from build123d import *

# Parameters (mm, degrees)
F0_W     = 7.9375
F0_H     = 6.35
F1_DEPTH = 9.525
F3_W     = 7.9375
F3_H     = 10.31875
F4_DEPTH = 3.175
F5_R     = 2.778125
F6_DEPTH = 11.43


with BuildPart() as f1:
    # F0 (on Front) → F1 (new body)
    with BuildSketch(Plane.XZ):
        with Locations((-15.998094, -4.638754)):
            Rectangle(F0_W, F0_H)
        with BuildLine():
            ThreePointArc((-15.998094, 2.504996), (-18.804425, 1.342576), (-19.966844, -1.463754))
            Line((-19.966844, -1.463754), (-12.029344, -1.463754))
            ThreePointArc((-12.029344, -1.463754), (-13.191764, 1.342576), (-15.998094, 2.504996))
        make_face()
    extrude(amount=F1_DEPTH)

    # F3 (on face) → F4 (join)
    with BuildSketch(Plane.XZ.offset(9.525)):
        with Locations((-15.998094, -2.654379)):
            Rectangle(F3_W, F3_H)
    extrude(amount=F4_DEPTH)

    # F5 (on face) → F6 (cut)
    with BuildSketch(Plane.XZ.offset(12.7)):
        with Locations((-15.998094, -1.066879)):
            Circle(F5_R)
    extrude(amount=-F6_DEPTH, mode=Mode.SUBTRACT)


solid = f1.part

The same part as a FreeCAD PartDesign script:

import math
import FreeCAD as App
import Part
import Sketcher

V = App.Vector
Q = App.Units.Quantity


def add_polygon(sketch, points):
    """Adds a closed chain of lines whose ends are joined by coincident constraints."""
    first, n = sketch.GeometryCount, len(points)
    for a, b in zip(points, points[1:] + points[:1]):
        sketch.addGeometry(Part.LineSegment(App.Vector(*a, 0), App.Vector(*b, 0)), False)
    for i in range(n):
        sketch.addConstraint(Sketcher.Constraint("Coincident", first + i, 2, first + (i + 1) % n, 1))

doc = App.newDocument("Part")
body = doc.addObject("PartDesign::Body", "Body")

# Sketch on XZ plane
sketch1 = body.newObject("Sketcher::SketchObject", "Sketch")
sketch1.AttachmentSupport = (doc.getObject("XZ_Plane"), [""])
sketch1.MapMode = "FlatFace"
sketch1.addGeometry([
    Part.LineSegment(V(-19.966844, -1.463754, 0), V(-19.966844, -7.813754, 0)),  # 0
    Part.LineSegment(V(-19.966844, -7.813754, 0), V(-12.029344, -7.813754, 0)),  # 1
    Part.LineSegment(V(-12.029344, -7.813754, 0), V(-12.029344, -1.463754, 0)),  # 2
    Part.ArcOfCircle(Part.Circle(V(-15.998094, -1.463754, 0), V(0, 0, 1), 3.96875), math.radians(0.000002), math.radians(89.999998)),  # 3
    Part.ArcOfCircle(Part.Circle(V(-15.998096, -1.463752, 0), V(0, 0, 1), 3.968748), math.radians(89.999977), math.radians(180.000023)),  # 4
], False)
sketch1.addConstraint([
    Sketcher.Constraint("Coincident", 0, 2, 1, 1),
    Sketcher.Constraint("Coincident", 1, 2, 2, 1),
    Sketcher.Constraint("Tangent", 2, 2, 3, 1),
    Sketcher.Constraint("Tangent", 3, 2, 4, 1),
    Sketcher.Constraint("Tangent", 4, 2, 0, 1),
    Sketcher.Constraint("Vertical", 0),
    Sketcher.Constraint("Horizontal", 1),
    Sketcher.Constraint("Vertical", 2),
    Sketcher.Constraint("Equal", 3, 4),
    Sketcher.Constraint("Vertical", 4, 3, 3, 2),
    Sketcher.Constraint("Radius", 3, Q("0.15625 in")),
    Sketcher.Constraint("DistanceY", 0, 2, 0, 1, Q("0.25 in")),
    Sketcher.Constraint("DistanceX", 3, 3, -1, 1, Q("15.998094 mm")),
    Sketcher.Constraint("DistanceY", 3, 3, -1, 1, Q("1.463754 mm")),
])
pad1 = body.newObject("PartDesign::Pad", "Pad")
pad1.Profile = sketch1
pad1.Length = Q("0.375 in")

# Sketch on XZ plane
sketch2 = body.newObject("Sketcher::SketchObject", "Sketch001")
sketch2.AttachmentSupport = (doc.getObject("XZ_Plane"), [""])
sketch2.MapMode = "FlatFace"
sketch2.AttachmentOffset = App.Placement(V(0, 0, 0.375 * 25.4), App.Rotation())
add_polygon(sketch2, [(-19.966844, 2.504996), (-19.966844, -7.813754), (-12.029344, -7.813754), (-12.029344, 2.504996)])  # lines 0-3
sketch2.addConstraint([
    Sketcher.Constraint("Vertical", 0),
    Sketcher.Constraint("Horizontal", 1),
    Sketcher.Constraint("Vertical", 2),
    Sketcher.Constraint("Horizontal", 3),
    Sketcher.Constraint("DistanceX", 1, 1, 1, 2, Q("0.3125 in")),
    Sketcher.Constraint("DistanceY", 0, 2, 0, 1, Q("0.40625 in")),
    Sketcher.Constraint("DistanceX", 0, 2, -1, 1, Q("19.966844 mm")),
    Sketcher.Constraint("DistanceY", 0, 2, -1, 1, Q("7.813754 mm")),
])
pad2 = body.newObject("PartDesign::Pad", "Pad001")
pad2.Profile = sketch2
pad2.Length = Q("0.125 in")

# Sketch on XZ plane
sketch3 = body.newObject("Sketcher::SketchObject", "Sketch002")
sketch3.AttachmentSupport = (doc.getObject("XZ_Plane"), [""])
sketch3.MapMode = "FlatFace"
sketch3.AttachmentOffset = App.Placement(V(0, 0, 0.5 * 25.4), App.Rotation())
sketch3.addGeometry(Part.Circle(V(-15.998094, -1.066879, 0), V(0, 0, 1), 2.778125), False)
sketch3.addConstraint([
    Sketcher.Constraint("Diameter", 0, Q("0.21875 in")),
    Sketcher.Constraint("DistanceY", 0, 3, -1, 1, Q("1.066879 mm")),
    Sketcher.Constraint("DistanceX", 0, 3, -1, 1, Q("15.998094 mm")),
])
pocket1 = body.newObject("PartDesign::Pocket", "Pocket")
pocket1.Profile = sketch3
pocket1.Length = Q("0.45 in")

doc.recompute()
